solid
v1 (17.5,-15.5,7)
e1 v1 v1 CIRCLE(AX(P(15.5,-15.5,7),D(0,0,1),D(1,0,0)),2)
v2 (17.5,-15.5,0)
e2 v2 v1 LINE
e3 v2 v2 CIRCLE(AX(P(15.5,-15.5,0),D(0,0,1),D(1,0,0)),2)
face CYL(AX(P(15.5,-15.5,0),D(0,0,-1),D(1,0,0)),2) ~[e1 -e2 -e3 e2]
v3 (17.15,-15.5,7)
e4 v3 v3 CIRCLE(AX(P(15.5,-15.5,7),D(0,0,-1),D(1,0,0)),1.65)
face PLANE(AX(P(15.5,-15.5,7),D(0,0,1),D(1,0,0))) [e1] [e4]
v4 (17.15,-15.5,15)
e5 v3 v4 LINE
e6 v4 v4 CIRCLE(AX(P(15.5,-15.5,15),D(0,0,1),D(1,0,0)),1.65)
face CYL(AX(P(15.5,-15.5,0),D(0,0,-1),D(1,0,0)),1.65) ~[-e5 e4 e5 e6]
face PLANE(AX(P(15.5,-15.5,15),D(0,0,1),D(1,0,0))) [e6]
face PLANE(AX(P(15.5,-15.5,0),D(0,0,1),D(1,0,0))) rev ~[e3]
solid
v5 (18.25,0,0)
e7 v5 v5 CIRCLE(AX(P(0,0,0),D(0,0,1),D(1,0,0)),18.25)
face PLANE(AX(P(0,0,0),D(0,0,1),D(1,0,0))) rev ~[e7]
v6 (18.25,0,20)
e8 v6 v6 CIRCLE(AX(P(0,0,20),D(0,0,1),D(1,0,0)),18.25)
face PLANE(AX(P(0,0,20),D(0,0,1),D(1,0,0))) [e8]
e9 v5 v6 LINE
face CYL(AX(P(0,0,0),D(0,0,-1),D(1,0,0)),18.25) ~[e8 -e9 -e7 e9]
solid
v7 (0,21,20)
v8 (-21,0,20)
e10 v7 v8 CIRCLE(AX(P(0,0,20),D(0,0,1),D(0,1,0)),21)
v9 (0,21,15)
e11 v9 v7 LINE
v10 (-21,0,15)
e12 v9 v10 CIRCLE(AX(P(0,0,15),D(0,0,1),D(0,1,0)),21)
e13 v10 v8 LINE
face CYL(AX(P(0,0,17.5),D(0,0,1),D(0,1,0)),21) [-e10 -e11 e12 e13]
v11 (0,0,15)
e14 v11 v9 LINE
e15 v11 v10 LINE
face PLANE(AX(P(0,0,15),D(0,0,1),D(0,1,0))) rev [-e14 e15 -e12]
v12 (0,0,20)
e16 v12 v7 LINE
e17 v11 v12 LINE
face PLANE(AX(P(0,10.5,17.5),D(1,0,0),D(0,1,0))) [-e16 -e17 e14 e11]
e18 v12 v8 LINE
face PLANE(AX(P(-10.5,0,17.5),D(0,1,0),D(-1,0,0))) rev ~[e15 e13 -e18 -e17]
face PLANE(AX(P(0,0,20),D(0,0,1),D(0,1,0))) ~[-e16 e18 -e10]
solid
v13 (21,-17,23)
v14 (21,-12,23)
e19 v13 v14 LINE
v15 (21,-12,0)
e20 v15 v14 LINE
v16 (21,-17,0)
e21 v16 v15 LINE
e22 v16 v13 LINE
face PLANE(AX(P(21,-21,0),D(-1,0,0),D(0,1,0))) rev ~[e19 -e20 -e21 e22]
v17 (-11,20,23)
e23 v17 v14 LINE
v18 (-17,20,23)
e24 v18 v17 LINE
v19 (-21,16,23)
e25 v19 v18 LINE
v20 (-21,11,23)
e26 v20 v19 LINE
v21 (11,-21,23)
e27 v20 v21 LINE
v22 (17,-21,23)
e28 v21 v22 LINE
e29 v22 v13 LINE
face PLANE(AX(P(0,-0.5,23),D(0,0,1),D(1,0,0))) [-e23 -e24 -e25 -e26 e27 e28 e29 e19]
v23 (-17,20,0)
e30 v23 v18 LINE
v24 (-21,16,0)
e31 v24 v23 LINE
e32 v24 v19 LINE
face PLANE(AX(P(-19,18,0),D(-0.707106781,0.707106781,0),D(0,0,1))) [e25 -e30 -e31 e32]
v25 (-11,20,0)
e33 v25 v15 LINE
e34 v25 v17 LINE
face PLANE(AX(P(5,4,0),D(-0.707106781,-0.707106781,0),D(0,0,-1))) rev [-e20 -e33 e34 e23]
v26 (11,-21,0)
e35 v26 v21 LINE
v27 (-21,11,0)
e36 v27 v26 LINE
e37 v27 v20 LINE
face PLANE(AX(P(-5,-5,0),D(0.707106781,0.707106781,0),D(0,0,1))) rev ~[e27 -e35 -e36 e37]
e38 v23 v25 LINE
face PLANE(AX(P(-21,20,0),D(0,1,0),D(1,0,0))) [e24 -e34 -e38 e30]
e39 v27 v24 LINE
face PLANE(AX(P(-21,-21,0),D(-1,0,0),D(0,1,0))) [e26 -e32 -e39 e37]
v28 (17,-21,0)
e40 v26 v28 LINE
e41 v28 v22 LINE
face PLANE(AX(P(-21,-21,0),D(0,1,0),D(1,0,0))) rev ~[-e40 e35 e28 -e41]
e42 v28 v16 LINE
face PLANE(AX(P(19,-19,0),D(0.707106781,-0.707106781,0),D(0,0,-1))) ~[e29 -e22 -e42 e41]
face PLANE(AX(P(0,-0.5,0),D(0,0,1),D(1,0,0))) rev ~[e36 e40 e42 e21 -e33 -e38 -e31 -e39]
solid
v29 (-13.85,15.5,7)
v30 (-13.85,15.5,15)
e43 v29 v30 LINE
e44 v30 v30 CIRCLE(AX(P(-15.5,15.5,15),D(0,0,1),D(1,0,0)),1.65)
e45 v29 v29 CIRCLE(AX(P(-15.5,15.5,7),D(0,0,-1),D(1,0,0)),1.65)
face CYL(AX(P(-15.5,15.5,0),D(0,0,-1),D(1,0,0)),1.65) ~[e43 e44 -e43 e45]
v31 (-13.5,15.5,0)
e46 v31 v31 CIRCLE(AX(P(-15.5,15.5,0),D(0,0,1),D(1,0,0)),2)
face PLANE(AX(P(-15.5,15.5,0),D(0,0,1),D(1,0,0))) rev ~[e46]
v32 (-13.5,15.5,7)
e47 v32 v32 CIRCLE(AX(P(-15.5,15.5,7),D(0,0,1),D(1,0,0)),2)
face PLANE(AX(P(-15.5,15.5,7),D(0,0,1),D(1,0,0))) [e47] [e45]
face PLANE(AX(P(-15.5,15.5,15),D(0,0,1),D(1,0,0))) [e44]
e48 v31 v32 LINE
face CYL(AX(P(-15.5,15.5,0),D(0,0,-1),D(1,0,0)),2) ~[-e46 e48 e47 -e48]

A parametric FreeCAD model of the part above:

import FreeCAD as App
import Part
import Sketcher
Q = App.Units.Quantity


def edges_at(feature, points):
    """Names of the edges that pass closest to the given points."""
    edges = feature.Shape.Edges
    near = lambda p: min(range(len(edges)), key=lambda i: edges[i].distToShape(Part.Vertex(*p))[0])
    return sorted({f"Edge{near(p) + 1}" for p in points})


def add_polygon(sketch, points):
    """Adds a closed chain of lines whose ends are joined by coincident constraints."""
    first, n = sketch.GeometryCount, len(points)
    for a, b in zip(points, points[1:] + points[:1]):
        sketch.addGeometry(Part.LineSegment(App.Vector(*a, 0), App.Vector(*b, 0)), False)
    for i in range(n):
        sketch.addConstraint(Sketcher.Constraint("Coincident", first + i, 2, first + (i + 1) % n, 1))

doc = App.newDocument("Part")
body = doc.addObject("PartDesign::Body", "Body")

# Sketch on XY plane
sketch1 = doc.addObject("Sketcher::SketchObject", "Sketch")
body.addObject(sketch1)
sketch1.AttachmentSupport = (doc.XY_Plane, [""])
sketch1.MapMode = "FlatFace"
sketch1.addGeometry(Part.Circle(App.Vector(15.5, -15.5, 0), App.Vector(0, 0, 1), 1.65), False)
sketch1.addConstraint([
    Sketcher.Constraint("Diameter", 0, Q("3.3 mm")),
    Sketcher.Constraint("DistanceX", -1, 1, 0, 3, Q("15.5 mm")),
    Sketcher.Constraint("DistanceY", 0, 3, -1, 1, Q("15.5 mm")),
])
pad1 = doc.addObject("PartDesign::Pad", "Pad")
body.addObject(pad1)
pad1.Profile = sketch1
pad1.Length = 15
body2 = doc.addObject("PartDesign::Body", "Body001")

# Sketch on XY plane
sketch2 = doc.addObject("Sketcher::SketchObject", "Sketch001")
body2.addObject(sketch2)
sketch2.AttachmentSupport = (doc.getObject("XY_Plane001"), [""])
sketch2.MapMode = "FlatFace"
sketch2.addGeometry(Part.Circle(App.Vector(0, 0, 0), App.Vector(0, 0, 1), 18.25), False)
sketch2.addConstraint([
    Sketcher.Constraint("Coincident", 0, 3, -1, 1),
    Sketcher.Constraint("Diameter", 0, Q("36.5 mm")),
])
pad2 = doc.addObject("PartDesign::Pad", "Pad001")
body2.addObject(pad2)
pad2.Profile = sketch2
pad2.Length = 20
body3 = doc.addObject("PartDesign::Body", "Body002")

# Sketch on XY plane
sketch3 = doc.addObject("Sketcher::SketchObject", "Sketch002")
body3.addObject(sketch3)
sketch3.AttachmentSupport = (doc.getObject("XY_Plane002"), [""])
sketch3.MapMode = "FlatFace"
sketch3.addGeometry(Part.Circle(App.Vector(-15.5, 15.5, 0), App.Vector(0, 0, 1), 2), False)
sketch3.addConstraint([
    Sketcher.Constraint("Diameter", 0, Q("4 mm")),
    Sketcher.Constraint("DistanceX", 0, 3, -1, 1, Q("15.5 mm")),
    Sketcher.Constraint("DistanceY", -1, 1, 0, 3, Q("15.5 mm")),
])
pad3 = doc.addObject("PartDesign::Pad", "Pad002")
body3.addObject(pad3)
pad3.Profile = sketch3
pad3.Length = 7
body4 = doc.addObject("PartDesign::Body", "Body003")

# Sketch on XY plane
sketch4 = doc.addObject("Sketcher::SketchObject", "Sketch003")
body4.addObject(sketch4)
sketch4.AttachmentSupport = (doc.getObject("XY_Plane003"), [""])
sketch4.MapMode = "FlatFace"
sketch4.addGeometry(Part.Circle(App.Vector(15.5, -15.5, 0), App.Vector(0, 0, 1), 2), False)
sketch4.addConstraint([
    Sketcher.Constraint("Diameter", 0, Q("4 mm")),
    Sketcher.Constraint("DistanceX", -1, 1, 0, 3, Q("15.5 mm")),
    Sketcher.Constraint("DistanceY", 0, 3, -1, 1, Q("15.5 mm")),
])
pad4 = doc.addObject("PartDesign::Pad", "Pad003")
body4.addObject(pad4)
pad4.Profile = sketch4
pad4.Length = 7
body5 = doc.addObject("PartDesign::Body", "Body004")
body5.AllowCompound = True

# Sketch on XY plane
sketch5 = doc.addObject("Sketcher::SketchObject", "Sketch004")
body5.addObject(sketch5)
sketch5.AttachmentSupport = (doc.getObject("XY_Plane004"), [""])
sketch5.MapMode = "FlatFace"
sketch5.addGeometry(Part.Circle(App.Vector(-15.5, 15.5, 0), App.Vector(0, 0, 1), 1.65), False)
sketch5.addConstraint([
    Sketcher.Constraint("Diameter", 0, Q("3.3 mm")),
    Sketcher.Constraint("DistanceX", 0, 3, -1, 1, Q("15.5 mm")),
    Sketcher.Constraint("DistanceY", -1, 1, 0, 3, Q("15.5 mm")),
])
pad5 = doc.addObject("PartDesign::Pad", "Pad004")
body5.addObject(pad5)
pad5.Profile = sketch5
pad5.Length = 15
doc.recompute()

boolean = doc.addObject("PartDesign::Boolean", "Boolean")
body5.addObject(boolean)
boolean.Type = "Fuse"
boolean.addObjects([body])
doc.recompute()

boolean2 = doc.addObject("PartDesign::Boolean", "Boolean001")
body5.addObject(boolean2)
boolean2.Type = "Fuse"
boolean2.addObjects([body2])
doc.recompute()

boolean3 = doc.addObject("PartDesign::Boolean", "Boolean002")
body5.addObject(boolean3)
boolean3.Type = "Fuse"
boolean3.addObjects([body3])
doc.recompute()

boolean4 = doc.addObject("PartDesign::Boolean", "Boolean003")
body5.addObject(boolean4)
boolean4.Type = "Fuse"
boolean4.addObjects([body4])
body6 = doc.addObject("PartDesign::Body", "Body005")

# Sketch on XY plane
sketch6 = doc.addObject("Sketcher::SketchObject", "Sketch005")
body6.addObject(sketch6)
sketch6.AttachmentSupport = (doc.getObject("XY_Plane005"), [""])
sketch6.MapMode = "FlatFace"
add_polygon(sketch6, [(-21, 20), (-21, -21), (21, -21), (21, 20)])  # lines 0-3
sketch6.addConstraint([
    Sketcher.Constraint("Vertical", 0),
    Sketcher.Constraint("Horizontal", 1),
    Sketcher.Constraint("Vertical", 2),
    Sketcher.Constraint("Horizontal", 3),
    Sketcher.Constraint("DistanceX", 1, 1, 1, 2, Q("42 mm")),
    Sketcher.Constraint("DistanceY", 0, 2, 0, 1, Q("41 mm")),
    Sketcher.Constraint("DistanceX", 0, 2, -1, 1, Q("21 mm")),
    Sketcher.Constraint("DistanceY", 0, 2, -1, 1, Q("21 mm")),
])
pad6 = doc.addObject("PartDesign::Pad", "Pad005")
body6.addObject(pad6)
pad6.Profile = sketch6
pad6.Length = 23
doc.recompute()

chamfer = doc.addObject("PartDesign::Chamfer", "Chamfer")
body6.addObject(chamfer)
chamfer.Base = (pad6, edges_at(pad6, [(-21, 20, 11.5), (21, -21, 11.5)]))
chamfer.Size = 4
doc.recompute()

chamfer2 = doc.addObject("PartDesign::Chamfer", "Chamfer001")
body6.addObject(chamfer2)
chamfer2.Base = (chamfer, edges_at(chamfer, [(-21, -21, 11.5), (21, 20, 11.5)]))
chamfer2.Size = 32
body7 = doc.addObject("PartDesign::Body", "Body006")

# Sketch on YZ plane
sketch7 = doc.addObject("Sketcher::SketchObject", "Sketch006")
body7.addObject(sketch7)
sketch7.AttachmentSupport = (doc.getObject("YZ_Plane006"), [""])
sketch7.MapMode = "FlatFace"
add_polygon(sketch7, [(0, 20), (0, 15), (21, 15), (21, 20)])  # lines 0-3
sketch7.addConstraint([
    Sketcher.Constraint("Vertical", 0),
    Sketcher.Constraint("Horizontal", 1),
    Sketcher.Constraint("Vertical", 2),
    Sketcher.Constraint("Horizontal", 3),
    Sketcher.Constraint("PointOnObject", 0, 2, -2),
    Sketcher.Constraint("DistanceX", 1, 1, 1, 2, Q("21 mm")),
    Sketcher.Constraint("DistanceY", 0, 2, 0, 1, Q("5 mm")),
    Sketcher.Constraint("DistanceY", -1, 1, 0, 2, Q("15 mm")),
])
revolution = doc.addObject("PartDesign::Revolution", "Revolution")
body7.addObject(revolution)
revolution.Profile = sketch7
revolution.ReferenceAxis = (sketch7, ["V_Axis"])
revolution.Angle = 90

doc.recompute()
